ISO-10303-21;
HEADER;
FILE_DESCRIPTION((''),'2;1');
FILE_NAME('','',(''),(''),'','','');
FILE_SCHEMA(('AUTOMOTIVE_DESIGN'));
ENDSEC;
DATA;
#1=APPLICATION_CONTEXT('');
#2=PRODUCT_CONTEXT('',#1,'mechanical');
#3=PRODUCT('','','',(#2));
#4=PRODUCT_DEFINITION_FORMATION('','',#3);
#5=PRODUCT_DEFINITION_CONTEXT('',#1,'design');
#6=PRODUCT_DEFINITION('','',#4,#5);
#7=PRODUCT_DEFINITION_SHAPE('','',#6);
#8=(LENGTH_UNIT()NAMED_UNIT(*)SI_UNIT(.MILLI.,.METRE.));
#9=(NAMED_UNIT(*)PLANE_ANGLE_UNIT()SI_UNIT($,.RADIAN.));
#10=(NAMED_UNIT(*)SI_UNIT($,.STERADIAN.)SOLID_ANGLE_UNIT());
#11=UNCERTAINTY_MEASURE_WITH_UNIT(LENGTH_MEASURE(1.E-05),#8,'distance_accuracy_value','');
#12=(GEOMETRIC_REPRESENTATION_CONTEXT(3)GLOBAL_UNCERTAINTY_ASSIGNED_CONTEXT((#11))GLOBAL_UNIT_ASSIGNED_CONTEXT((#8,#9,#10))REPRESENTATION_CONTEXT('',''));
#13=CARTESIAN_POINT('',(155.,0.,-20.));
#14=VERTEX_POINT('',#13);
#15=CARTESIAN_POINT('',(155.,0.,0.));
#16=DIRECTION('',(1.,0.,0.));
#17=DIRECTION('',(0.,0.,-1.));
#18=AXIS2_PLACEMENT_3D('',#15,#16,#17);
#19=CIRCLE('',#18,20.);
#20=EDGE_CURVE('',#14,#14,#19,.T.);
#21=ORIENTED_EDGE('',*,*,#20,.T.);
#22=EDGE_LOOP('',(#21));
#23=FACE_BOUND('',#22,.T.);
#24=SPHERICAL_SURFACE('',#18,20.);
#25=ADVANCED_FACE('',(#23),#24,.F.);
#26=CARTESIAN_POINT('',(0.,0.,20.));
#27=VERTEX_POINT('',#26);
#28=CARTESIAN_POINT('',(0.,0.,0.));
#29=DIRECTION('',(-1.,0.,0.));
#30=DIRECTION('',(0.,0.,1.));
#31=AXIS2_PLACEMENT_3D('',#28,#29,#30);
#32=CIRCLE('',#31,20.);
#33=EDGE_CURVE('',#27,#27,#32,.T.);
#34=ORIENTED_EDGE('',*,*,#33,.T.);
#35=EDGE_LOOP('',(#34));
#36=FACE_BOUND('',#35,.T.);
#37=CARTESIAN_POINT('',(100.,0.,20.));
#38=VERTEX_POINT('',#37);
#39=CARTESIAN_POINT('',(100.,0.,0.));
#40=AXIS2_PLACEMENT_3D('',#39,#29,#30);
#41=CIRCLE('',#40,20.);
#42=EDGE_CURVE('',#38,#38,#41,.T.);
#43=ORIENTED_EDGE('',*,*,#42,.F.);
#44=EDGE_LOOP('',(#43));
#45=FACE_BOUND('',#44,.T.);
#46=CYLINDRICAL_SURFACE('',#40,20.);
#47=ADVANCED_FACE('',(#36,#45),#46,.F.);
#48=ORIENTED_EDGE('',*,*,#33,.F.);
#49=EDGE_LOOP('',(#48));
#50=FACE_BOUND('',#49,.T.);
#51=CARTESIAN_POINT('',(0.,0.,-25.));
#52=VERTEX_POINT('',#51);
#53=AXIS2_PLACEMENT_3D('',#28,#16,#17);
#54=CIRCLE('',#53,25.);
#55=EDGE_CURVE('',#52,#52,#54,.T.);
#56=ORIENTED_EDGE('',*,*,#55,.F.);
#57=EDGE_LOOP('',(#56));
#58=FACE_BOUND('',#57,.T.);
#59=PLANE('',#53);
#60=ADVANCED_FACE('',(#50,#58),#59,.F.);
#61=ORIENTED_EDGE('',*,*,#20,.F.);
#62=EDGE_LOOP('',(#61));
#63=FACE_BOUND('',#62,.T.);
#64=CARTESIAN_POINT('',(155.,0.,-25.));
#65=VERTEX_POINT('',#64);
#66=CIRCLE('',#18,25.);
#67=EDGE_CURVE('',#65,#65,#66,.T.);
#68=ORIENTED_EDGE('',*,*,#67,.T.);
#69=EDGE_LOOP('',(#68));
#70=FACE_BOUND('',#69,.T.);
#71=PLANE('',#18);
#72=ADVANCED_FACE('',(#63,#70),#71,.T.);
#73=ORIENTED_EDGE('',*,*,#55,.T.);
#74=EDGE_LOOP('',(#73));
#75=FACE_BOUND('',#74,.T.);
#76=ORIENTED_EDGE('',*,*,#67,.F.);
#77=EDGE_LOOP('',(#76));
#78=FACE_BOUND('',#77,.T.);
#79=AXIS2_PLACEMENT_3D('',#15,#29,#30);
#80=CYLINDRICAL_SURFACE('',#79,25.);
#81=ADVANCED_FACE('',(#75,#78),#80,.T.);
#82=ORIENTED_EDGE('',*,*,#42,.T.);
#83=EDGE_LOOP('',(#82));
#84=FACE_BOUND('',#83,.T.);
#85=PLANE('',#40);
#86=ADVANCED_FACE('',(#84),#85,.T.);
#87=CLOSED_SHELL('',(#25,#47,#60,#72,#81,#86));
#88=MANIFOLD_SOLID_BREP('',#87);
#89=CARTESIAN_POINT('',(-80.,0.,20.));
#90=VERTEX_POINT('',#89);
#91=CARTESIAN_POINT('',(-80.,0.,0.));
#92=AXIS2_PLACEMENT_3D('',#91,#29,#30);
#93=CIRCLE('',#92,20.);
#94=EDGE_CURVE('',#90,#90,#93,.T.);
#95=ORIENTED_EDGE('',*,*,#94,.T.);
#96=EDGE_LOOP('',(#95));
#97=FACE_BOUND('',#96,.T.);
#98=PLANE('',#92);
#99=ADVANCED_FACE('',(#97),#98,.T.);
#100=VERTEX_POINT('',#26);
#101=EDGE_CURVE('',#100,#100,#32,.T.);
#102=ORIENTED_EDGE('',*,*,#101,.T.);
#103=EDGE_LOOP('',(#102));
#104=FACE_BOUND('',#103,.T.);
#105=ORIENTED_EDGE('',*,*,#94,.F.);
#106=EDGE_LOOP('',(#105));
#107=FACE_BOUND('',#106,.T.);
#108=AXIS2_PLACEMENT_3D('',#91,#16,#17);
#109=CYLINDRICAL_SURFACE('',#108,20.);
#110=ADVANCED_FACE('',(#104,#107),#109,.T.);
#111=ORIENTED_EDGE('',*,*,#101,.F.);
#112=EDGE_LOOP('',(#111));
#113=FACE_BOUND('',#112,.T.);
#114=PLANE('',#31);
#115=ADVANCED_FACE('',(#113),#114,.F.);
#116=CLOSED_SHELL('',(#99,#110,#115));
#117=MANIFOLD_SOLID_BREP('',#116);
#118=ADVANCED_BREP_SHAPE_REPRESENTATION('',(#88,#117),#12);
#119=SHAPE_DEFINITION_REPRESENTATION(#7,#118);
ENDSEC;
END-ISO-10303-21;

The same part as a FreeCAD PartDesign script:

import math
import FreeCAD as App
import Part
import Sketcher

doc = App.newDocument("Part")
params = doc.addObject("Spreadsheet::Sheet", "Params")
for row, (alias, value) in enumerate([
    ("sketch1_diameter", "50 mm"),
    ("pad1_length", "155 mm"),
    ("sketch2_radius", "20 mm"),
    ("groove_angle", "360 deg"),
    ("sketch3_diameter", "40 mm"),
    ("pocket1_length", "100 mm"),
    ("sketch4_diameter", "40 mm"),
    ("pad2_length", "80 mm"),
], start=1):
    params.set(f"A{row}", alias)
    params.set(f"B{row}", "=" + value)
    params.setAlias(f"B{row}", alias)

body = doc.addObject("PartDesign::Body", "Body")

# Sketch on YZ plane
sketch1 = body.newObject("Sketcher::SketchObject", "Sketch")
sketch1.AttachmentSupport = (doc.getObject("YZ_Plane"), [""])
sketch1.MapMode = "FlatFace"
sketch1.addGeometry(Part.Circle(App.Vector(0, 0, 0), App.Vector(0, 0, 1), 25), False)
sketch1.addConstraint([
    Sketcher.Constraint("Coincident", 0, 3, -1, 1),
    Sketcher.Constraint("Diameter", 0, 50.0),
])
sketch1.setExpression("Constraints[1]", "Params.sketch1_diameter")
pad1 = body.newObject("PartDesign::Pad", "Pad")
pad1.Profile = sketch1
pad1.setExpression("Length", "Params.pad1_length")

# Sketch on YZ plane
sketch2 = body.newObject("Sketcher::SketchObject", "Sketch001")
sketch2.AttachmentSupport = (doc.getObject("YZ_Plane"), [""])
sketch2.MapMode = "FlatFace"
sketch2.AttachmentOffset = App.Placement(App.Vector(0, 0, 155), App.Rotation())
sketch2.addGeometry([
    Part.LineSegment(App.Vector(0, 20, 0), App.Vector(0, -20, 0)),
    Part.ArcOfCircle(Part.Circle(App.Vector(0, 0, 0), App.Vector(0, 0, 1), 20), math.radians(-90), math.radians(90)),
], False)
sketch2.addConstraint([
    Sketcher.Constraint("Coincident", 0, 1, 1, 2),
    Sketcher.Constraint("Coincident", 1, 1, 0, 2),
    Sketcher.Constraint("Vertical", 0),
    Sketcher.Constraint("Coincident", 1, 3, -1, 1),
    Sketcher.Constraint("PointOnObject", 0, 1, -2),
    Sketcher.Constraint("Radius", 1, 20.0),
])
sketch2.setExpression("Constraints[5]", "Params.sketch2_radius")
groove = body.newObject("PartDesign::Groove", "Groove")
groove.Profile = sketch2
groove.ReferenceAxis = (sketch2, ["V_Axis"])
groove.setExpression("Angle", "Params.groove_angle")

# Sketch on YZ plane
sketch3 = body.newObject("Sketcher::SketchObject", "Sketch002")
sketch3.AttachmentSupport = (doc.getObject("YZ_Plane"), [""])
sketch3.MapMode = "FlatFace"
sketch3.addGeometry(Part.Circle(App.Vector(0, 0, 0), App.Vector(0, 0, 1), 20), False)
sketch3.addConstraint([
    Sketcher.Constraint("Coincident", 0, 3, -1, 1),
    Sketcher.Constraint("Diameter", 0, 40.0),
])
sketch3.setExpression("Constraints[1]", "Params.sketch3_diameter")
pocket1 = body.newObject("PartDesign::Pocket", "Pocket")
pocket1.Profile = sketch3
pocket1.setExpression("Length", "Params.pocket1_length")
pocket1.Reversed = True
body2 = doc.addObject("PartDesign::Body", "Body001")

# Sketch on YZ plane
sketch4 = body2.newObject("Sketcher::SketchObject", "Sketch003")
sketch4.AttachmentSupport = (doc.getObject("YZ_Plane001"), [""])
sketch4.MapMode = "FlatFace"
sketch4.addGeometry(Part.Circle(App.Vector(0, 0, 0), App.Vector(0, 0, 1), 20), False)
sketch4.addConstraint([
    Sketcher.Constraint("Coincident", 0, 3, -1, 1),
    Sketcher.Constraint("Diameter", 0, 40.0),
])
sketch4.setExpression("Constraints[1]", "Params.sketch4_diameter")
pad2 = body2.newObject("PartDesign::Pad", "Pad001")
pad2.Profile = sketch4
pad2.setExpression("Length", "Params.pad2_length")
pad2.Reversed = True

doc.recompute()
